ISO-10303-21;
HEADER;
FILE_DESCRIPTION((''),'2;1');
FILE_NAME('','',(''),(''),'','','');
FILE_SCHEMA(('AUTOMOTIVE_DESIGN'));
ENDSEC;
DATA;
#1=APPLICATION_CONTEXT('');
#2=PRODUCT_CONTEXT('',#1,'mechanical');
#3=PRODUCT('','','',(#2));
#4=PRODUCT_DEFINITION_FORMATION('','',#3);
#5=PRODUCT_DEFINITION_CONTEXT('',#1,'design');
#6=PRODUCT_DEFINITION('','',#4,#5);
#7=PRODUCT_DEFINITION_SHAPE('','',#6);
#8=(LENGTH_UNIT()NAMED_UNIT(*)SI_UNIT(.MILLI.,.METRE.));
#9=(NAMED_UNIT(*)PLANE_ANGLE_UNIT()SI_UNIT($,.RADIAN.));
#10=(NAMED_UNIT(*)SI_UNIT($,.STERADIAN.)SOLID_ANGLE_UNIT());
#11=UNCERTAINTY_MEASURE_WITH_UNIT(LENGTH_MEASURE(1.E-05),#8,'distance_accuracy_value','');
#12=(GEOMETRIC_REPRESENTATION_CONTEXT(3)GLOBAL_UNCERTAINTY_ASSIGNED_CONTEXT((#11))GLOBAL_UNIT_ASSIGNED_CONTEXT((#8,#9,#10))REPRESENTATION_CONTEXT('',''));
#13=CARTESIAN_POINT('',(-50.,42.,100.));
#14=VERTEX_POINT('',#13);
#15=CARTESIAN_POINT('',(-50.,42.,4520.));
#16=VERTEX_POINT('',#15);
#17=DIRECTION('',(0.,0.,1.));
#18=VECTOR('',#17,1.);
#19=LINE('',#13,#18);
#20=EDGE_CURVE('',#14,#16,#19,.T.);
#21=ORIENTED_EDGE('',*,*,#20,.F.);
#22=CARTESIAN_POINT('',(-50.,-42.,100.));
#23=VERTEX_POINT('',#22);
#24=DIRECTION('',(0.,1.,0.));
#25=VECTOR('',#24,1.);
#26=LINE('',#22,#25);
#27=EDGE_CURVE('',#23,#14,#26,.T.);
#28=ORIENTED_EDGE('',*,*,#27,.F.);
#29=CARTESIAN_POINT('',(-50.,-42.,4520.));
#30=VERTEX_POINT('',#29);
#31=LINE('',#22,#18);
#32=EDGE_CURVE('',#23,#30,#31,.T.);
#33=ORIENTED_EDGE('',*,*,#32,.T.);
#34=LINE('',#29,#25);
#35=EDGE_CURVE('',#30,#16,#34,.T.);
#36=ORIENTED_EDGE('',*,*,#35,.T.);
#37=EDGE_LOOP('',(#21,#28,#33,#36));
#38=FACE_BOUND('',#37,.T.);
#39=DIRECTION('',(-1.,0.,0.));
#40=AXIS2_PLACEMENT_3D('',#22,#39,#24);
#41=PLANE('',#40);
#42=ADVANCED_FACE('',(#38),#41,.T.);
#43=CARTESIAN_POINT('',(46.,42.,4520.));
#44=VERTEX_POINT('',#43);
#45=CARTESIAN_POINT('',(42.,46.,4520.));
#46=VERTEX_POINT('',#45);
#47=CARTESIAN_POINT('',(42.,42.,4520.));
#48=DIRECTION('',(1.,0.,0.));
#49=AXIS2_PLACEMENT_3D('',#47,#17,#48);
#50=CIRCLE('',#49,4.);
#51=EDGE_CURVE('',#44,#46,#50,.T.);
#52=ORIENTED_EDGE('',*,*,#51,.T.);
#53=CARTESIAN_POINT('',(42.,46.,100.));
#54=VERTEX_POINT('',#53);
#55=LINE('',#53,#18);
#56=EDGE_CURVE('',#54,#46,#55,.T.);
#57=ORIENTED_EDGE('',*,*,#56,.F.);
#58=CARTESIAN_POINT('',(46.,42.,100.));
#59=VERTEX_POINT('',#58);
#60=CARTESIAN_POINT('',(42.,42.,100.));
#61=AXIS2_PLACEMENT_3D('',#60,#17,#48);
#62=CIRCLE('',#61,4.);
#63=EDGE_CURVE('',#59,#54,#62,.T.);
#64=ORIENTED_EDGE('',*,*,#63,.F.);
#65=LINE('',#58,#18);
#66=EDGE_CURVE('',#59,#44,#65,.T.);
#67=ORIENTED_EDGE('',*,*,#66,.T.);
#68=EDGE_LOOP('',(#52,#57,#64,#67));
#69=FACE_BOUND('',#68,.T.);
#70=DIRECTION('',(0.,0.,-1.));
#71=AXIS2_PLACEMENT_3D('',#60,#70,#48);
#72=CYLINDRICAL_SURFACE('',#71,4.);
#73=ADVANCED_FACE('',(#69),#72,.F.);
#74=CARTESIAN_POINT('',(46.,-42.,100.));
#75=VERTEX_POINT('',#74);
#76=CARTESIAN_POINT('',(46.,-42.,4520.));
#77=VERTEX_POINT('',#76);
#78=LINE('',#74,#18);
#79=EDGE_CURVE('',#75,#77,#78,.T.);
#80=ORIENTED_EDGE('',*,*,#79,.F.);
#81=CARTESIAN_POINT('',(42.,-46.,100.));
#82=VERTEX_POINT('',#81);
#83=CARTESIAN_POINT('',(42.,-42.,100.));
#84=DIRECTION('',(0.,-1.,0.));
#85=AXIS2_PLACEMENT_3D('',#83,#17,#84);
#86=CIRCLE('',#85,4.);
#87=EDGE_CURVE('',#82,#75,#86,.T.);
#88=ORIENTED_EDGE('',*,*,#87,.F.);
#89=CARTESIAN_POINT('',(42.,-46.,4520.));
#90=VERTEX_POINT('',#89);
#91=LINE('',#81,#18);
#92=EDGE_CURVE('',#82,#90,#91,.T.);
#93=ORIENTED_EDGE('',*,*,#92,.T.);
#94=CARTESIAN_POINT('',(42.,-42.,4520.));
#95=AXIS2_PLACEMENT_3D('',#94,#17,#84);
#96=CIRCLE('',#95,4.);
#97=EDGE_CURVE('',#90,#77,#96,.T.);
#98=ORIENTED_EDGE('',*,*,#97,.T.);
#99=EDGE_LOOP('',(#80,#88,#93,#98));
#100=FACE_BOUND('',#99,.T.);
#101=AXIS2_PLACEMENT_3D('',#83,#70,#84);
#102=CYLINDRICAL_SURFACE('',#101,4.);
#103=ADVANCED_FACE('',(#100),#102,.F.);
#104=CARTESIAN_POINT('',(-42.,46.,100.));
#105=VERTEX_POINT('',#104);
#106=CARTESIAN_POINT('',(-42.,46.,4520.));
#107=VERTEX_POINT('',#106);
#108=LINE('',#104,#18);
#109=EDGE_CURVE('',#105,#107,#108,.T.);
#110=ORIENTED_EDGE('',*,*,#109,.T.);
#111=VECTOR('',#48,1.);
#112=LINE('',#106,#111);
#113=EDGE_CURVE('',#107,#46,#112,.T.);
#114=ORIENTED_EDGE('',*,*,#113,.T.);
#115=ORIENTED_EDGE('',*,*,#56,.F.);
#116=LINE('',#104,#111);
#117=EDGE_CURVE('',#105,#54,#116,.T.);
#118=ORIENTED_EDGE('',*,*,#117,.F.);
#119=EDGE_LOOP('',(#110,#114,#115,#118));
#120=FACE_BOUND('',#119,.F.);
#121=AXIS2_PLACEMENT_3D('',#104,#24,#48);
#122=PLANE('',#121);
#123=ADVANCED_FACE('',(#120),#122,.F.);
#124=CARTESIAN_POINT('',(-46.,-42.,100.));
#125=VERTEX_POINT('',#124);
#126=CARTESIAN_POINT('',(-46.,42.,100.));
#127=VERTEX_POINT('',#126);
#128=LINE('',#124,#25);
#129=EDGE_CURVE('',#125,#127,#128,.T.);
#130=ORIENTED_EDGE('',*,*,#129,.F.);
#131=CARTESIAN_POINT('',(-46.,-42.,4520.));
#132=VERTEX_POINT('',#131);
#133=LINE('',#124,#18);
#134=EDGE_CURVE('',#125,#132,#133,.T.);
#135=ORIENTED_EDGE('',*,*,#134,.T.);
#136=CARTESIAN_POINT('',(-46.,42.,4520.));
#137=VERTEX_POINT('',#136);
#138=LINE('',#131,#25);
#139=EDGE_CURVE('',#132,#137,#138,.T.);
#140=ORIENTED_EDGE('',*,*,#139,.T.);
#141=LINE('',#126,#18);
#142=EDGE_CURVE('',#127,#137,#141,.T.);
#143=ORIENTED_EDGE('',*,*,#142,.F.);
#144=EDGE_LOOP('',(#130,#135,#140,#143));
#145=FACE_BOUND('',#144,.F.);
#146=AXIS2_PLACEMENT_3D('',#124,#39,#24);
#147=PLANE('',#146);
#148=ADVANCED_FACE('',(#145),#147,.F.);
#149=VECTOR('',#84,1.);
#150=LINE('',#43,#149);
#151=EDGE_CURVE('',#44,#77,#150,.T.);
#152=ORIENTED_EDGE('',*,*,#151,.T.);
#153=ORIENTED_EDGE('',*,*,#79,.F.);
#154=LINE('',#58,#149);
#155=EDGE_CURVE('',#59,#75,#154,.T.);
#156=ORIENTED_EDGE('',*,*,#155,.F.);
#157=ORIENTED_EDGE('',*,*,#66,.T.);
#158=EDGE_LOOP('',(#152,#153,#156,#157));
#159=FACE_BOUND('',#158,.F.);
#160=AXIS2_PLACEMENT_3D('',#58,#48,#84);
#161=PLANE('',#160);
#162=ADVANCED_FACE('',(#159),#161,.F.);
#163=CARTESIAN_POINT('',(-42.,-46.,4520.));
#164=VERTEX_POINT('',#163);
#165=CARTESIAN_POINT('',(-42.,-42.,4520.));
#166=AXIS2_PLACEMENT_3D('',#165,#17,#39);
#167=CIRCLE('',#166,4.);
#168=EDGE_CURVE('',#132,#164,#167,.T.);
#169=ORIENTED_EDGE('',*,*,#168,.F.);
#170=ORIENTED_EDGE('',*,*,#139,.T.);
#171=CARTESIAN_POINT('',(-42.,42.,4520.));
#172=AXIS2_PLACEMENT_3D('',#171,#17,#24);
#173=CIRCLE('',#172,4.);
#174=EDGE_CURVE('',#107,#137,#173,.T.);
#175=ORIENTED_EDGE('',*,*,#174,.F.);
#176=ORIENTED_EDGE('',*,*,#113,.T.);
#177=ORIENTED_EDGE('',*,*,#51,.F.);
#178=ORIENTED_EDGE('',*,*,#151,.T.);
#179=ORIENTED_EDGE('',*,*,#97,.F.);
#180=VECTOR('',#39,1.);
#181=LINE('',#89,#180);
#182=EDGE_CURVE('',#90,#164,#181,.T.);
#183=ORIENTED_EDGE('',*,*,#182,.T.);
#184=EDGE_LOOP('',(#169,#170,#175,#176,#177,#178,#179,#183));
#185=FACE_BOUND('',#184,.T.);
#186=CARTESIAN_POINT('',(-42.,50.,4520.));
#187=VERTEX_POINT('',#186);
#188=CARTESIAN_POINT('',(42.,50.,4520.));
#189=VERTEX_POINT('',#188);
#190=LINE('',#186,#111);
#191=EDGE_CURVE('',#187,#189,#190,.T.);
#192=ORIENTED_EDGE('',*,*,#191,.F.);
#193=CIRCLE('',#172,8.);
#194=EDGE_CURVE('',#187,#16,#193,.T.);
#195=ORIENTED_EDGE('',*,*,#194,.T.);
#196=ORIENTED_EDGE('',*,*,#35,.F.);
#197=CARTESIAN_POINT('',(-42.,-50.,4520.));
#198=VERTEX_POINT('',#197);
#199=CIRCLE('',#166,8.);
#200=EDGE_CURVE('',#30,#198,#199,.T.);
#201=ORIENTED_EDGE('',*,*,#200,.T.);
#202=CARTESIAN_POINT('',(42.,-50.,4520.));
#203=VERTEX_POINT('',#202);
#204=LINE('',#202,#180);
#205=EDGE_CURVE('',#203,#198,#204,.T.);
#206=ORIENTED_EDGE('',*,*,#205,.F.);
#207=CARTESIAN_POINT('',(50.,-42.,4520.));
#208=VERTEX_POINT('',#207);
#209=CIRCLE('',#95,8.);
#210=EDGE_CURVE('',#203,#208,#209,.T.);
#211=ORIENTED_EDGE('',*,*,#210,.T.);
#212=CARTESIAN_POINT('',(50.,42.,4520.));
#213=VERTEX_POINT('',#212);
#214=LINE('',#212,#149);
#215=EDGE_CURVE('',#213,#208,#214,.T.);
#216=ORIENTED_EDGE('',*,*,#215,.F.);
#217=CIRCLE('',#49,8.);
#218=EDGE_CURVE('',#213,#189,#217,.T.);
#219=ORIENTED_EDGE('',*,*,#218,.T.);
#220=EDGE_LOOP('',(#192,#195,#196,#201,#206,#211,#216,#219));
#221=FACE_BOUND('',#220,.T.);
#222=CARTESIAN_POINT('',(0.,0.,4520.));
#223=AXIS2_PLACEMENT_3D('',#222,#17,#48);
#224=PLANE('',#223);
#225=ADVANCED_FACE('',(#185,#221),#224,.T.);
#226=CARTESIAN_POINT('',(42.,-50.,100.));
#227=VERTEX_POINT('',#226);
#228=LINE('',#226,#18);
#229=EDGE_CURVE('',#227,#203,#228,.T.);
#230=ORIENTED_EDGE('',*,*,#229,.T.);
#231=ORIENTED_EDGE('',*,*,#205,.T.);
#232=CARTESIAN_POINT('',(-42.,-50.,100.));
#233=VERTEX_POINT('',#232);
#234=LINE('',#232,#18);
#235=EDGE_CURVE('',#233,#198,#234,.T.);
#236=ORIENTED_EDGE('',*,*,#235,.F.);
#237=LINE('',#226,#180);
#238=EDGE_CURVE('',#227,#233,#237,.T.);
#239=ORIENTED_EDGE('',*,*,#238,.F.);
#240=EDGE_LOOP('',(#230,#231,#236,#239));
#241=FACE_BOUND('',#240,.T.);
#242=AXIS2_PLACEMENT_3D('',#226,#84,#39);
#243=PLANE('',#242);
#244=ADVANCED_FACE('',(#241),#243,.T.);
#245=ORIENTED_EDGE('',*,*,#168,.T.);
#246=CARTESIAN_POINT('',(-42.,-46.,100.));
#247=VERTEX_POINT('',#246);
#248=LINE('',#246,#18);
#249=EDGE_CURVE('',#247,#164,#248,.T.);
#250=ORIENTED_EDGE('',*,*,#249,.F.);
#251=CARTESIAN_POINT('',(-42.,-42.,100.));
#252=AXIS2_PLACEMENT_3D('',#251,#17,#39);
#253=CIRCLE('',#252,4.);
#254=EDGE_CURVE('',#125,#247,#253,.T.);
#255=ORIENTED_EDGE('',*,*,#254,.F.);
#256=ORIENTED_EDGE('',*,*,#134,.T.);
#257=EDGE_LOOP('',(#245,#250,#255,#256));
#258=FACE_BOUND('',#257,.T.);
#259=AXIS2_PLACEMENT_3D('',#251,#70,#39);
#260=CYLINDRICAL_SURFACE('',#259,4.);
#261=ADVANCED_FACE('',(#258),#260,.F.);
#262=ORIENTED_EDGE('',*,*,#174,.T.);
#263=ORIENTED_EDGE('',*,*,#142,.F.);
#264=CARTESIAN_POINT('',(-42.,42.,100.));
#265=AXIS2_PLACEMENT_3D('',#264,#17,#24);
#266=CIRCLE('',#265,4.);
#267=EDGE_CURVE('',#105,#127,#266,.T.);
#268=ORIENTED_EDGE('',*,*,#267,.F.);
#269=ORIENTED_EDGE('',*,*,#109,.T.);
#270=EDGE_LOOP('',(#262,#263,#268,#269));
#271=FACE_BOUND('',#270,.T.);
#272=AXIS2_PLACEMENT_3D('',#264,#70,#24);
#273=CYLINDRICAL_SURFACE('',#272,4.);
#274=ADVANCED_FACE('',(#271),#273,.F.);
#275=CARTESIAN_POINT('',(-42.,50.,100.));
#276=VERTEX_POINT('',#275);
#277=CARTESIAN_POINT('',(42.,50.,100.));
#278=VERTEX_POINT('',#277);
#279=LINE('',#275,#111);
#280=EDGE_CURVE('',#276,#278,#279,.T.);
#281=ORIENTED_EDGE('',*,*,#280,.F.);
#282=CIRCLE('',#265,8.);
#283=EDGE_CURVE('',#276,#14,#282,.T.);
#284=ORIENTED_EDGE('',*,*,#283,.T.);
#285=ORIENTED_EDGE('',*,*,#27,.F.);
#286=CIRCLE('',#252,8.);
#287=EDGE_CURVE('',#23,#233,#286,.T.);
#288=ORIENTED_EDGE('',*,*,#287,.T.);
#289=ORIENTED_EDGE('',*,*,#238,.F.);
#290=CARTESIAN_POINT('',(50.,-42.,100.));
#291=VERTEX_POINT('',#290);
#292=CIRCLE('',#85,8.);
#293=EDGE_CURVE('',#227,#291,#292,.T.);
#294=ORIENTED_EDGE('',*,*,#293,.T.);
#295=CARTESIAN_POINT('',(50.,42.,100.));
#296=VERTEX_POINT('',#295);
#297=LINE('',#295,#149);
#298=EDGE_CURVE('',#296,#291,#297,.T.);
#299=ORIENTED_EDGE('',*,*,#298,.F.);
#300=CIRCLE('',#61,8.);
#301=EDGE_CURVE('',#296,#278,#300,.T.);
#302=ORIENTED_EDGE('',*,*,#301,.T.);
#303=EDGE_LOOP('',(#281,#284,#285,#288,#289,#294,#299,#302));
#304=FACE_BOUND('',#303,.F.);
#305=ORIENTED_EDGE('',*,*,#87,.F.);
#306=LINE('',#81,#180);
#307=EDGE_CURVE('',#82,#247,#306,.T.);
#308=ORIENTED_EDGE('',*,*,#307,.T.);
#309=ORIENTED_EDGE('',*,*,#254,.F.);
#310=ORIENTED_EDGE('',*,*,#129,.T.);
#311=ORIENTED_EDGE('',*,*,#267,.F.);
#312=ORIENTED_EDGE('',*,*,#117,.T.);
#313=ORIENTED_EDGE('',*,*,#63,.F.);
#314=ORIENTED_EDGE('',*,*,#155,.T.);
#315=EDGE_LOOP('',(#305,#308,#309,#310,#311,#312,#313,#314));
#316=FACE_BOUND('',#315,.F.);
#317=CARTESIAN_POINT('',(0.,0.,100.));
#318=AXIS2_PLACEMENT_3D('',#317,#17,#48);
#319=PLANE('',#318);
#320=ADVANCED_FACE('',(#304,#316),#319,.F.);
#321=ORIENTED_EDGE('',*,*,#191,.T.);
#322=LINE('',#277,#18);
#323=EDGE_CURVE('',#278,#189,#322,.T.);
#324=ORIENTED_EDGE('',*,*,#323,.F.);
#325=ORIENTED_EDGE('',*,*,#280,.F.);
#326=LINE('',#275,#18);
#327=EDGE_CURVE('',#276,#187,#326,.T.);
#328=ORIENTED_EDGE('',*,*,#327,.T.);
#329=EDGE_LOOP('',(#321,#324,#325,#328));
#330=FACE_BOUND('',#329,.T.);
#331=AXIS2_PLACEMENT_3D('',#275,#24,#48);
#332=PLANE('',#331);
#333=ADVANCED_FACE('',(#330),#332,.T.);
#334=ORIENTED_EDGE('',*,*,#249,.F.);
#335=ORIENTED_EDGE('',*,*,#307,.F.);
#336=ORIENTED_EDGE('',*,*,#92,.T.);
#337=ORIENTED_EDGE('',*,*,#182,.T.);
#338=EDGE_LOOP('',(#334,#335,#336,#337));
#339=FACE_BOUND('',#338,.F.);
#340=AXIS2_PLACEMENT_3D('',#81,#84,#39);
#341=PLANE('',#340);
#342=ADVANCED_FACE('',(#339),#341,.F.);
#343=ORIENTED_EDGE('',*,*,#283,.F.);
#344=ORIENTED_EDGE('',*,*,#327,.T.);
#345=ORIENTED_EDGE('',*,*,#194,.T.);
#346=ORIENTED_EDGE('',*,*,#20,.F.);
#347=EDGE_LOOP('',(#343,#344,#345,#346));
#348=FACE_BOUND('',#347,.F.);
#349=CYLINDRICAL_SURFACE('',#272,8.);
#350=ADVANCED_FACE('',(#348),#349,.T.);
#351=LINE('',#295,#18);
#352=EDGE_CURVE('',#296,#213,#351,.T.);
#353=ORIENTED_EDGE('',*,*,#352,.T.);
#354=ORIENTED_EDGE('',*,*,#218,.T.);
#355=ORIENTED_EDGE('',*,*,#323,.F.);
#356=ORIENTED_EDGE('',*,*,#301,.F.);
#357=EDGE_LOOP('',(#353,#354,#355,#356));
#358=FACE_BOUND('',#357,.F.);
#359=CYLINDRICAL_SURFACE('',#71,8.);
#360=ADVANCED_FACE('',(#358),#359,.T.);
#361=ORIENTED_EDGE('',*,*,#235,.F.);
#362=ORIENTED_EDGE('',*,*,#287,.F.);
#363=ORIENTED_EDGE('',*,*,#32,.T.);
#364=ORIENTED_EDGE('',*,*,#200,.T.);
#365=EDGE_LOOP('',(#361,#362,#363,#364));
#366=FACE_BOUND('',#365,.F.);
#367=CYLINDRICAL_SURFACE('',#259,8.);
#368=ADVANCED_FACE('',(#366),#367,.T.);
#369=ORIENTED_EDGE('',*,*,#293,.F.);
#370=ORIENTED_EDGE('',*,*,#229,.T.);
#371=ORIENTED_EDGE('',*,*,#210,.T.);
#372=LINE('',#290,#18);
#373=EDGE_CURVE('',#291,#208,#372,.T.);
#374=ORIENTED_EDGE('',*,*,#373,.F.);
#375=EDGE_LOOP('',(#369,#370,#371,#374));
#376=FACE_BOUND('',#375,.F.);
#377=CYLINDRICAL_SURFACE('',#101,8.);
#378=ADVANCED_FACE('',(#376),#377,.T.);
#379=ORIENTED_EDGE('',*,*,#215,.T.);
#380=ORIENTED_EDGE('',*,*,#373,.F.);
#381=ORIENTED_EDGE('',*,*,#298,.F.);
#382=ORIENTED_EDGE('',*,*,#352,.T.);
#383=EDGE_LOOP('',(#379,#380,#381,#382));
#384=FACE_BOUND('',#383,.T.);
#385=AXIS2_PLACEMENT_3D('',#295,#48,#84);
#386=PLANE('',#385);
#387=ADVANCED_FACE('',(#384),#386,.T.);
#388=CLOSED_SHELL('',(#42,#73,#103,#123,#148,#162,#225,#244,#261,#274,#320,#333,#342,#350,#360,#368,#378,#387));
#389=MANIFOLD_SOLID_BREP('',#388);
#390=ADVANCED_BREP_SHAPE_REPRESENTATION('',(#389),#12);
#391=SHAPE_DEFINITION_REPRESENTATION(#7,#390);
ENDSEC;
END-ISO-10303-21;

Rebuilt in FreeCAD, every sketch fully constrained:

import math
import FreeCAD as App
import Part
import Sketcher

doc = App.newDocument("Part")
body = doc.addObject("PartDesign::Body", "Body")

# Sketch on XY plane
sketch1 = body.newObject("Sketcher::SketchObject", "Sketch")
sketch1.AttachmentSupport = (doc.getObject("XY_Plane"), [""])
sketch1.MapMode = "FlatFace"
sketch1.AttachmentOffset = App.Placement(App.Vector(0, 0, 100), App.Rotation())
sketch1.addGeometry([
    Part.LineSegment(App.Vector(-50, 42, 0), App.Vector(-50, -42, 0)),  # 0
    Part.ArcOfCircle(Part.Circle(App.Vector(-42, -42, 0), App.Vector(0, 0, 1), 8), math.radians(180), math.radians(270)),  # 1
    Part.LineSegment(App.Vector(-42, -50, 0), App.Vector(42, -50, 0)),  # 2
    Part.ArcOfCircle(Part.Circle(App.Vector(42, -42, 0), App.Vector(0, 0, 1), 8), math.radians(-90), math.radians(0)),  # 3
    Part.LineSegment(App.Vector(50, -42, 0), App.Vector(50, 42, 0)),  # 4
    Part.ArcOfCircle(Part.Circle(App.Vector(42, 42, 0), App.Vector(0, 0, 1), 8), math.radians(0), math.radians(90)),  # 5
    Part.LineSegment(App.Vector(42, 50, 0), App.Vector(-42, 50, 0)),  # 6
    Part.ArcOfCircle(Part.Circle(App.Vector(-42, 42, 0), App.Vector(0, 0, 1), 8), math.radians(90), math.radians(180)),  # 7
    Part.ArcOfCircle(Part.Circle(App.Vector(-42, 42, 0), App.Vector(0, 0, 1), 4), math.radians(90), math.radians(180)),  # 8
    Part.LineSegment(App.Vector(-42, 46, 0), App.Vector(42, 46, 0)),  # 9
    Part.ArcOfCircle(Part.Circle(App.Vector(42, 42, 0), App.Vector(0, 0, 1), 4), math.radians(0), math.radians(90)),  # 10
    Part.LineSegment(App.Vector(46, 42, 0), App.Vector(46, -42, 0)),  # 11
    Part.ArcOfCircle(Part.Circle(App.Vector(42, -42, 0), App.Vector(0, 0, 1), 4), math.radians(-90), math.radians(0)),  # 12
    Part.LineSegment(App.Vector(42, -46, 0), App.Vector(-42, -46, 0)),  # 13
    Part.ArcOfCircle(Part.Circle(App.Vector(-42, -42, 0), App.Vector(0, 0, 1), 4), math.radians(180), math.radians(270)),  # 14
    Part.LineSegment(App.Vector(-46, -42, 0), App.Vector(-46, 42, 0)),  # 15
], False)
sketch1.addConstraint([
    Sketcher.Constraint("Tangent", 0, 2, 1, 1),
    Sketcher.Constraint("Tangent", 1, 2, 2, 1),
    Sketcher.Constraint("Tangent", 2, 2, 3, 1),
    Sketcher.Constraint("Tangent", 3, 2, 4, 1),
    Sketcher.Constraint("Tangent", 4, 2, 5, 1),
    Sketcher.Constraint("Tangent", 5, 2, 6, 1),
    Sketcher.Constraint("Tangent", 6, 2, 7, 1),
    Sketcher.Constraint("Tangent", 7, 2, 0, 1),
    Sketcher.Constraint("Tangent", 8, 1, 9, 1),
    Sketcher.Constraint("Tangent", 9, 2, 10, 2),
    Sketcher.Constraint("Tangent", 10, 1, 11, 1),
    Sketcher.Constraint("Tangent", 11, 2, 12, 2),
    Sketcher.Constraint("Tangent", 12, 1, 13, 1),
    Sketcher.Constraint("Tangent", 13, 2, 14, 2),
    Sketcher.Constraint("Tangent", 14, 1, 15, 1),
    Sketcher.Constraint("Tangent", 15, 2, 8, 2),
    Sketcher.Constraint("Vertical", 0),
    Sketcher.Constraint("Horizontal", 2),
    Sketcher.Constraint("Vertical", 4),
    Sketcher.Constraint("Horizontal", 6),
    Sketcher.Constraint("Horizontal", 9),
    Sketcher.Constraint("Vertical", 11),
    Sketcher.Constraint("Horizontal", 13),
    Sketcher.Constraint("Vertical", 15),
    Sketcher.Constraint("Coincident", 8, 3, 7, 3),
    Sketcher.Constraint("Coincident", 10, 3, 5, 3),
    Sketcher.Constraint("Coincident", 12, 3, 3, 3),
    Sketcher.Constraint("Equal", 1, 3),
    Sketcher.Constraint("Equal", 3, 5),
    Sketcher.Constraint("Equal", 5, 7),
    Sketcher.Constraint("Equal", 12, 14),
    Sketcher.Constraint("Symmetric", 1, 3, 5, 3, -1, 1),
    Sketcher.Constraint("Equal", 13, 0),
    Sketcher.Constraint("Radius", 1, 8.0),
    Sketcher.Constraint("Radius", 8, 4.0),
    Sketcher.Constraint("DistanceX", 0, 2, -1, 1, 50.0),
])
pad1 = body.newObject("PartDesign::Pad", "Pad")
pad1.Profile = sketch1
pad1.Length = 4420

doc.recompute()
